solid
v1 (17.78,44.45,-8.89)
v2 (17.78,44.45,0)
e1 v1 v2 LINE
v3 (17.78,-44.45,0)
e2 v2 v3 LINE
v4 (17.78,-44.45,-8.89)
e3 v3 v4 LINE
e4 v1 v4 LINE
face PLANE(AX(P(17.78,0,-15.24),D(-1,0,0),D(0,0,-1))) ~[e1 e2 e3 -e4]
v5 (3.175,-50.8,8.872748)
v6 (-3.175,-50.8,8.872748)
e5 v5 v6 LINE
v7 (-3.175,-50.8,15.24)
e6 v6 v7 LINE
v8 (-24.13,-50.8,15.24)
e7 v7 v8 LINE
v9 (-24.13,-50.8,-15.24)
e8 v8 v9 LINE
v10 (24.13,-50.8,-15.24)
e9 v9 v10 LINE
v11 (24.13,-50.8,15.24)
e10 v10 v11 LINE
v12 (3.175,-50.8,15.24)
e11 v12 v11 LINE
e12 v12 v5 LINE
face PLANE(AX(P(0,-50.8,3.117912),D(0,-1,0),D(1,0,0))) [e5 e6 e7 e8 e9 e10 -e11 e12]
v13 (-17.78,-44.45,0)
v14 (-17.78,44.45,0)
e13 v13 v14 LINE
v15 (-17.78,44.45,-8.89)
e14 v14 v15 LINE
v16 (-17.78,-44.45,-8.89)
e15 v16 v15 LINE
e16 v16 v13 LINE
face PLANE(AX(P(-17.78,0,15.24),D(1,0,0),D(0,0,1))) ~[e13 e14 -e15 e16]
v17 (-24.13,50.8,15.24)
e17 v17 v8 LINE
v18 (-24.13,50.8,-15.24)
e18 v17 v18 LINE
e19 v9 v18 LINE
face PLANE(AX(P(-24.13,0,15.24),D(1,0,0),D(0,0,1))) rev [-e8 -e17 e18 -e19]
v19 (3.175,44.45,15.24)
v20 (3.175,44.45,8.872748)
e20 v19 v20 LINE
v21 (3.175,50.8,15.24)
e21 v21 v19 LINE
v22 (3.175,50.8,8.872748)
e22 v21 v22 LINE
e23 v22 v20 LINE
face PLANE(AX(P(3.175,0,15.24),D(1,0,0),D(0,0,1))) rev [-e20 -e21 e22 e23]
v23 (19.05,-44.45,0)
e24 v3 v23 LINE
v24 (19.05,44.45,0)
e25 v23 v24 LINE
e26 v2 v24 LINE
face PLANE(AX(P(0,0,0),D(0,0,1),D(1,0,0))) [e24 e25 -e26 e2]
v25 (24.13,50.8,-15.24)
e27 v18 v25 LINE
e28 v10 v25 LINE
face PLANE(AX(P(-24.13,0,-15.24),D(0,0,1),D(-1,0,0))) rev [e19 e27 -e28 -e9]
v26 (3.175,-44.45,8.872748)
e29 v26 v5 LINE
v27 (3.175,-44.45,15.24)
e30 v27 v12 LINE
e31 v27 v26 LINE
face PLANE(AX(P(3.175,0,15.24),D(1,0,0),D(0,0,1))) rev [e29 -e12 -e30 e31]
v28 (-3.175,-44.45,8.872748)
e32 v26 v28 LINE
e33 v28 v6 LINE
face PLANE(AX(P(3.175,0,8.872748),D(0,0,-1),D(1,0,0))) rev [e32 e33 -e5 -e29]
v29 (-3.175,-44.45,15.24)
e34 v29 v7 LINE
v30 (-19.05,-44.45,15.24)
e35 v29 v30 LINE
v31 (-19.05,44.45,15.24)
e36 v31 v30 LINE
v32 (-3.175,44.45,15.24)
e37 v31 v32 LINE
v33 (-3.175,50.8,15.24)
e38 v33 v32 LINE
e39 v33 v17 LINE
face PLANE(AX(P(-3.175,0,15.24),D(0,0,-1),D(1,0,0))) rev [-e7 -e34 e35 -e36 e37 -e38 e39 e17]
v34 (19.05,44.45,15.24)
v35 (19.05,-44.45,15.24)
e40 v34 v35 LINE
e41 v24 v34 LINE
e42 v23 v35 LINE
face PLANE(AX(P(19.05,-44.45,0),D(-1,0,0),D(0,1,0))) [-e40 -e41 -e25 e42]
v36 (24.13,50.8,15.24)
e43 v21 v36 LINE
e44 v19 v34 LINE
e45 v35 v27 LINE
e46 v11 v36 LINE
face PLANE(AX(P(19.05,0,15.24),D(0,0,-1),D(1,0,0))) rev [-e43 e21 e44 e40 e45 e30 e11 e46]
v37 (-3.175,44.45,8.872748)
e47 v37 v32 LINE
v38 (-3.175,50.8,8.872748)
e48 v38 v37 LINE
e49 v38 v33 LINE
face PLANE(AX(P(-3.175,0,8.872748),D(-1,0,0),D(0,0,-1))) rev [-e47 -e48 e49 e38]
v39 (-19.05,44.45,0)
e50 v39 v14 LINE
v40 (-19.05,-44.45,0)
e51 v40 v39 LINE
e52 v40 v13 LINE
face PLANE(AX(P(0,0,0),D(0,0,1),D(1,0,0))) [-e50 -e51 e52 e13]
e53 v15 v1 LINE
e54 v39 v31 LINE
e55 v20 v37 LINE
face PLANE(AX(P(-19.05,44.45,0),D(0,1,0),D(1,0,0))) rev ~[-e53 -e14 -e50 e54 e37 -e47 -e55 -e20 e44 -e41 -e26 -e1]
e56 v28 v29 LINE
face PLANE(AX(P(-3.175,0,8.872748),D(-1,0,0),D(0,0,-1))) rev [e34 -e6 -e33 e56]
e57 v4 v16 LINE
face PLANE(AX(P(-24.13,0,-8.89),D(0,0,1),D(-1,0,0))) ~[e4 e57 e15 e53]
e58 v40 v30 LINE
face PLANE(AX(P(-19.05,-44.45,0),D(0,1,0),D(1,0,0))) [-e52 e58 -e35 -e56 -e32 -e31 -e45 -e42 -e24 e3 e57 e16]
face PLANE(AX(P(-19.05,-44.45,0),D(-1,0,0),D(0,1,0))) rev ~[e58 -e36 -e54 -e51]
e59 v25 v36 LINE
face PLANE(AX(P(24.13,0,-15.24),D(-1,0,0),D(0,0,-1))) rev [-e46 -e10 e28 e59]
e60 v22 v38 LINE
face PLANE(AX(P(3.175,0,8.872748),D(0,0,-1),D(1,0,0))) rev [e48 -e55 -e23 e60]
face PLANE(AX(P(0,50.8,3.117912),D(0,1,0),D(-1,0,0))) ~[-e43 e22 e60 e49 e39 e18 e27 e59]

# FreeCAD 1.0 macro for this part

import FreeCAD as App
import Part
import Sketcher
from FreeCAD import Vector
Q = App.Units.Quantity


def faces_at(feature, points):
    """Names of the faces that lie closest to the given points."""
    faces = feature.Shape.Faces
    near = lambda p: min(range(len(faces)), key=lambda i: faces[i].distToShape(Part.Vertex(*p))[0])
    return sorted({f"Face{near(p) + 1}" for p in points})

doc = App.newDocument("Part")
body = doc.addObject("PartDesign::Body", "Body")

# Sketch on XZ plane
sketch1 = body.newObject("Sketcher::SketchObject", "Sketch")
sketch1.AttachmentSupport = (doc.getObject("XZ_Plane"), [""])
sketch1.MapMode = "FlatFace"
sketch1.addGeometry([
    Part.LineSegment(Vector(24, -15, 0), Vector(24, 15, 0)),  # 0
    Part.LineSegment(Vector(24, 15, 0), Vector(19, 15, 0)),  # 1
    Part.LineSegment(Vector(19, 15, 0), Vector(19, -10, 0)),  # 2
    Part.LineSegment(Vector(19, -10, 0), Vector(-19, -10, 0)),  # 3
    Part.LineSegment(Vector(-19, -10, 0), Vector(-19, 15, 0)),  # 4
    Part.LineSegment(Vector(-19, 15, 0), Vector(-24, 15, 0)),  # 5
    Part.LineSegment(Vector(-24, 15, 0), Vector(-24, -15, 0)),  # 6
    Part.LineSegment(Vector(-24, -15, 0), Vector(24, -15, 0)),  # 7
], False)
sketch1.addConstraint([
    Sketcher.Constraint("Coincident", 0, 2, 1, 1),
    Sketcher.Constraint("Coincident", 1, 2, 2, 1),
    Sketcher.Constraint("Coincident", 2, 2, 3, 1),
    Sketcher.Constraint("Coincident", 3, 2, 4, 1),
    Sketcher.Constraint("Coincident", 4, 2, 5, 1),
    Sketcher.Constraint("Coincident", 5, 2, 6, 1),
    Sketcher.Constraint("Coincident", 6, 2, 7, 1),
    Sketcher.Constraint("Coincident", 7, 2, 0, 1),
    Sketcher.Constraint("Vertical", 0),
    Sketcher.Constraint("Horizontal", 1),
    Sketcher.Constraint("Vertical", 2),
    Sketcher.Constraint("Horizontal", 3),
    Sketcher.Constraint("Vertical", 4),
    Sketcher.Constraint("Horizontal", 5),
    Sketcher.Constraint("Vertical", 6),
    Sketcher.Constraint("Horizontal", 7),
    Sketcher.Constraint("Symmetric", 0, 2, 6, 2, -1, 1),
    Sketcher.Constraint("Symmetric", 1, 2, 4, 2, -2),
    Sketcher.Constraint("DistanceY", 2, 2, 2, 1, Q("1 in")),
    Sketcher.Constraint("DistanceX", 1, 2, 1, 1, Q("0.2 in")),
    Sketcher.Constraint("DistanceX", 3, 2, 3, 1, Q("1.5 in")),
    Sketcher.Constraint("DistanceY", 0, 1, 0, 2, Q("1.2 in")),
])
pad1 = body.newObject("PartDesign::Pad", "Pad")
pad1.Profile = sketch1
pad1.Length = Q("2 in")

# Sketch on XZ plane
sketch2 = body.newObject("Sketcher::SketchObject", "Sketch001")
sketch2.AttachmentSupport = (doc.getObject("XZ_Plane"), [""])
sketch2.MapMode = "FlatFace"
sketch2.addGeometry([
    Part.LineSegment(Vector(19, -10, 0), Vector(19, 15, 0)),  # 0
    Part.LineSegment(Vector(19, 15, 0), Vector(3, 15, 0)),  # 1
    Part.LineSegment(Vector(3, 15, 0), Vector(3, 9, 0)),  # 2
    Part.LineSegment(Vector(3, 9, 0), Vector(-3, 9, 0)),  # 3
    Part.LineSegment(Vector(-3, 9, 0), Vector(-3, 15, 0)),  # 4
    Part.LineSegment(Vector(-3, 15, 0), Vector(-19, 15, 0)),  # 5
    Part.LineSegment(Vector(-19, 15, 0), Vector(-19, -10, 0)),  # 6
    Part.LineSegment(Vector(-19, -10, 0), Vector(19, -10, 0)),  # 7
], False)
sketch2.addConstraint([
    Sketcher.Constraint("Coincident", 0, 2, 1, 1),
    Sketcher.Constraint("Coincident", 1, 2, 2, 1),
    Sketcher.Constraint("Coincident", 2, 2, 3, 1),
    Sketcher.Constraint("Coincident", 3, 2, 4, 1),
    Sketcher.Constraint("Coincident", 4, 2, 5, 1),
    Sketcher.Constraint("Coincident", 5, 2, 6, 1),
    Sketcher.Constraint("Coincident", 6, 2, 7, 1),
    Sketcher.Constraint("Coincident", 7, 2, 0, 1),
    Sketcher.Constraint("Vertical", 0),
    Sketcher.Constraint("Horizontal", 1),
    Sketcher.Constraint("Vertical", 2),
    Sketcher.Constraint("Horizontal", 3),
    Sketcher.Constraint("Vertical", 4),
    Sketcher.Constraint("Horizontal", 5),
    Sketcher.Constraint("Vertical", 6),
    Sketcher.Constraint("Horizontal", 7),
    Sketcher.Constraint("Symmetric", 1, 2, 4, 2, -2),
    Sketcher.Constraint("Equal", 1, 5),
    Sketcher.Constraint("DistanceY", 0, 1, 0, 2, Q("1 in")),
    Sketcher.Constraint("DistanceX", 7, 1, 7, 2, Q("1.5 in")),
    Sketcher.Constraint("DistanceX", 3, 2, 3, 1, Q("0.25 in")),
    Sketcher.Constraint("DistanceY", -1, 1, 0, 2, Q("0.6 in")),
    Sketcher.Constraint("DistanceY", 2, 2, 2, 1, Q("6.367252 mm")),
])
pad2 = body.newObject("PartDesign::Pad", "Pad001")
pad2.Profile = sketch2
pad2.Length = Q("2 in")
body2 = doc.addObject("PartDesign::Body", "Body001")
doc.recompute()

body2.BaseFeature = body
doc.recompute()

mirroring = doc.addObject("Part::Mirroring", "Mirroring")
mirroring.Source = body
mirroring.Base = Vector(0, 0, 0)
mirroring.Normal = Vector(0, -1, 0)
body3 = doc.addObject("PartDesign::Body", "Body002")
body3.BaseFeature = mirroring
boolean = body2.newObject("PartDesign::Boolean", "Boolean")
boolean.Type = "Fuse"
boolean.addObjects([body3])
doc.recompute()

thickness = body2.newObject("PartDesign::Thickness", "Thickness")
thickness.Base = (boolean, faces_at(boolean, [(13.652, 0, 15.24), (-13.652, 0, 15.24)]))
thickness.Value = Q("0.25 in")
thickness.Reversed = True
thickness.Join = "Intersection"

# Sketch on XY plane
sketch3 = body2.newObject("Sketcher::SketchObject", "Sketch002")
sketch3.AttachmentSupport = (doc.getObject("XY_Plane001"), [""])
sketch3.MapMode = "FlatFace"
sketch3.addGeometry([
    Part.LineSegment(Vector(-19, 44, 0), Vector(-19, -44, 0)),
    Part.LineSegment(Vector(-19, -44, 0), Vector(19, -44, 0)),
    Part.LineSegment(Vector(19, -44, 0), Vector(19, 44, 0)),
    Part.LineSegment(Vector(19, 44, 0), Vector(-19, 44, 0)),
], False)
sketch3.addConstraint([
    Sketcher.Constraint("Coincident", 0, 2, 1, 1),
    Sketcher.Constraint("Coincident", 1, 2, 2, 1),
    Sketcher.Constraint("Coincident", 2, 2, 3, 1),
    Sketcher.Constraint("Coincident", 3, 2, 0, 1),
    Sketcher.Constraint("Vertical", 0),
    Sketcher.Constraint("Horizontal", 1),
    Sketcher.Constraint("Vertical", 2),
    Sketcher.Constraint("Horizontal", 3),
    Sketcher.Constraint("Symmetric", 0, 2, 2, 2, -1, 1),
    Sketcher.Constraint("DistanceX", 1, 1, 1, 2, Q("1.5 in")),
    Sketcher.Constraint("DistanceY", 0, 2, 0, 1, Q("3.5 in")),
])
pocket1 = body2.newObject("PartDesign::Pocket", "Pocket")
pocket1.Profile = sketch3
pocket1.Length = Q("1.25 in")
pocket1.Reversed = True
mirroring.Visibility = False

doc.recompute()
